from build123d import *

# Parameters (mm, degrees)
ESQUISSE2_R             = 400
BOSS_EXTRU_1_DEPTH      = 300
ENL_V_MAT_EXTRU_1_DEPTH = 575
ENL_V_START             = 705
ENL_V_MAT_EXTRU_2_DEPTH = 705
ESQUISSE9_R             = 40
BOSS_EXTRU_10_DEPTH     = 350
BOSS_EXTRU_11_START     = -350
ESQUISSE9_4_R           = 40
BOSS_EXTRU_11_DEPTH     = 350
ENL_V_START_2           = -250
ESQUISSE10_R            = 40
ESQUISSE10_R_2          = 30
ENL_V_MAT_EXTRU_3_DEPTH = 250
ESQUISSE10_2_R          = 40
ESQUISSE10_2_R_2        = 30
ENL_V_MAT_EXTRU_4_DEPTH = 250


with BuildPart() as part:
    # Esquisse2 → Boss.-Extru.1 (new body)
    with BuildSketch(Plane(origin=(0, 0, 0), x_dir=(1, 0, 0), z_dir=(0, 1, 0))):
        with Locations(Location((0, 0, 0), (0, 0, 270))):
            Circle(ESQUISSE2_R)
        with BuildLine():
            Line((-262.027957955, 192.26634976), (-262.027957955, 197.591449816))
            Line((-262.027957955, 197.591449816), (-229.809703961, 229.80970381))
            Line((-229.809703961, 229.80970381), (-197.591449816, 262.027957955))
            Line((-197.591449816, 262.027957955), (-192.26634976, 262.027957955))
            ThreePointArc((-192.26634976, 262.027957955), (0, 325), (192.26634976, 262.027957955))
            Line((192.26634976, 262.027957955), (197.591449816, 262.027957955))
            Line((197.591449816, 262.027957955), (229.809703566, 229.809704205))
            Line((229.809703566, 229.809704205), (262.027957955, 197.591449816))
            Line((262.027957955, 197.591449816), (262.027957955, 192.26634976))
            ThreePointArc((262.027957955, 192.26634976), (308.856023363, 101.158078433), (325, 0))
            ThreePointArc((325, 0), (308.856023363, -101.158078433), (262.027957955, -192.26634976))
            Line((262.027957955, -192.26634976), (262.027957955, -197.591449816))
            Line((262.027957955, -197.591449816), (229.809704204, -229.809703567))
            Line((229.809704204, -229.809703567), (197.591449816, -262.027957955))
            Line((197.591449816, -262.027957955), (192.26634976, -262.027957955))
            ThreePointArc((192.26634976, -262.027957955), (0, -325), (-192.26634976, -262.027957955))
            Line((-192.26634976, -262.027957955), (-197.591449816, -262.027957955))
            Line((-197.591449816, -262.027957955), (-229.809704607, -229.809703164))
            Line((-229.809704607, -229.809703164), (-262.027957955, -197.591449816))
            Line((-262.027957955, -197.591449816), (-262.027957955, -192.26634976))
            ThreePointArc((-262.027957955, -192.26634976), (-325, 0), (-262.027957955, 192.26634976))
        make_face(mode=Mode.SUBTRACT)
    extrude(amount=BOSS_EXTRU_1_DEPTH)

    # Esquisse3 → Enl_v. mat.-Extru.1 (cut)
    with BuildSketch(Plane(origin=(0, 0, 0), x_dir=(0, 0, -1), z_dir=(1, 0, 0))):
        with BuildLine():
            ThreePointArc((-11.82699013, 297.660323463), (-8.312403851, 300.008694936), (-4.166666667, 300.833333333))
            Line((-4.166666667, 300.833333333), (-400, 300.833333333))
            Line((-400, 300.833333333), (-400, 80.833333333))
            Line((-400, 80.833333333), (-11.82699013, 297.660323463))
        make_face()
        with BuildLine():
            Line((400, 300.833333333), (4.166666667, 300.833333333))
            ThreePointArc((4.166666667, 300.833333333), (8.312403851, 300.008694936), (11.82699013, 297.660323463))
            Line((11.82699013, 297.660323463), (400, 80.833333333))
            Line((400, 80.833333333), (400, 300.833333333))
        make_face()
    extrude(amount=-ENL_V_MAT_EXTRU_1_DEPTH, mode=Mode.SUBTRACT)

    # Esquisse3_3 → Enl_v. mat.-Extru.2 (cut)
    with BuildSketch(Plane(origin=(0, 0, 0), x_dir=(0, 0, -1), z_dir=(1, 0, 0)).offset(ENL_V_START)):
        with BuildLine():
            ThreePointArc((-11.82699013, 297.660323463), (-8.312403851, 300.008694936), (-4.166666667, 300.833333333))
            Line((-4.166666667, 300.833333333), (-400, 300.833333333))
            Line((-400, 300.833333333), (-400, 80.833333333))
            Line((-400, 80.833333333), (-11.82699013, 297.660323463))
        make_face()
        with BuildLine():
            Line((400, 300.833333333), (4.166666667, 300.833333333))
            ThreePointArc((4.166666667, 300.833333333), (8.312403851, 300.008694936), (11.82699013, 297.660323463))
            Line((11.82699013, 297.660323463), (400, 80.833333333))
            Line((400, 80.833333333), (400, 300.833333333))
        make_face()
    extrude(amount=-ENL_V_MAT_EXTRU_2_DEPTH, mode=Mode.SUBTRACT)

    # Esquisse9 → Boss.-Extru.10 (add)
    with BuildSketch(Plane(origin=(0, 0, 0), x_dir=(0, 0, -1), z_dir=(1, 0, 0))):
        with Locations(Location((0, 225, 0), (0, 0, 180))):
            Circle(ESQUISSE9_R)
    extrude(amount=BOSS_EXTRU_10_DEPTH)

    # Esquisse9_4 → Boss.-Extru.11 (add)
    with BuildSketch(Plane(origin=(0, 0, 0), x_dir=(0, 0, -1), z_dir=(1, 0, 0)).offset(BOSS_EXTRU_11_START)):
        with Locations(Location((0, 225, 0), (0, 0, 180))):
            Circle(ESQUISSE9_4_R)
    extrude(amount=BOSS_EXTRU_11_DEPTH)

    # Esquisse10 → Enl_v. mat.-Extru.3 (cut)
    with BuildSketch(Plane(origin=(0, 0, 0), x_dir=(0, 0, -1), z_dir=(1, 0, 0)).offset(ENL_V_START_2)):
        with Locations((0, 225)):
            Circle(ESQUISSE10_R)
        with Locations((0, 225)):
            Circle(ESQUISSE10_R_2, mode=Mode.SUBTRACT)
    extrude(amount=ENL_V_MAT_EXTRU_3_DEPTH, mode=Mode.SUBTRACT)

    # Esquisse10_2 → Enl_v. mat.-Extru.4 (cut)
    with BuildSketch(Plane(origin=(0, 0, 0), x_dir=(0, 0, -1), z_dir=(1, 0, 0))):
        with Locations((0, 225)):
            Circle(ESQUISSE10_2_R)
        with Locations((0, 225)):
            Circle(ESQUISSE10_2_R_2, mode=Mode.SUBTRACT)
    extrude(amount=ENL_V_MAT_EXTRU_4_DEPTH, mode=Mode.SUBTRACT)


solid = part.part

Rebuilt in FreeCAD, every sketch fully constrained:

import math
import FreeCAD as App
import Part
import Sketcher

V = App.Vector
Q = App.Units.Quantity

doc = App.newDocument("Part")
body = doc.addObject("PartDesign::Body", "Body")

# Sketch on XZ plane
sketch1 = body.newObject("Sketcher::SketchObject", "Sketch")
sketch1.AttachmentSupport = (doc.getObject("XZ_Plane"), [""])
sketch1.MapMode = "FlatFace"
sketch1.addGeometry([
    Part.Circle(V(0, 0, 0), V(0, 0, 1), 400),  # 0
    Part.ArcOfCircle(Part.Circle(V(0, 0, 0), V(0, 0, 1), 325), math.radians(144), math.radians(216)),  # 1
    Part.LineSegment(V(-262, -192, 0), V(-262, -198, 0)),  # 2
    Part.LineSegment(V(-262, -198, 0), V(-198, -262, 0)),  # 3
    Part.LineSegment(V(-198, -262, 0), V(-192, -262, 0)),  # 4
    Part.ArcOfCircle(Part.Circle(V(0, 0, 0), V(0, 0, 1), 325), math.radians(-126), math.radians(-54)),  # 5
    Part.LineSegment(V(192, -262, 0), V(198, -262, 0)),  # 6
    Part.LineSegment(V(198, -262, 0), V(262, -198, 0)),  # 7
    Part.LineSegment(V(262, -198, 0), V(262, -192, 0)),  # 8
    Part.ArcOfCircle(Part.Circle(V(0, 0, 0), V(0, 0, 1), 325), math.radians(-36), math.radians(0)),  # 9
    Part.ArcOfCircle(Part.Circle(V(0, 0, 0), V(0, 0, 1), 325), math.radians(0), math.radians(36)),  # 10
    Part.LineSegment(V(262, 192, 0), V(262, 198, 0)),  # 11
    Part.LineSegment(V(262, 198, 0), V(198, 262, 0)),  # 12
    Part.LineSegment(V(198, 262, 0), V(192, 262, 0)),  # 13
    Part.ArcOfCircle(Part.Circle(V(0, 0, 0), V(0, 0, 1), 325), math.radians(54), math.radians(126)),  # 14
    Part.LineSegment(V(-192, 262, 0), V(-198, 262, 0)),  # 15
    Part.LineSegment(V(-198, 262, 0), V(-262, 198, 0)),  # 16
    Part.LineSegment(V(-262, 198, 0), V(-262, 192, 0)),  # 17
], False)
sketch1.addConstraint([
    Sketcher.Constraint("Coincident", 1, 2, 2, 1),
    Sketcher.Constraint("Coincident", 2, 2, 3, 1),
    Sketcher.Constraint("Coincident", 3, 2, 4, 1),
    Sketcher.Constraint("Coincident", 4, 2, 5, 1),
    Sketcher.Constraint("Coincident", 5, 2, 6, 1),
    Sketcher.Constraint("Coincident", 6, 2, 7, 1),
    Sketcher.Constraint("Coincident", 7, 2, 8, 1),
    Sketcher.Constraint("Coincident", 8, 2, 9, 1),
    Sketcher.Constraint("Tangent", 9, 2, 10, 1),
    Sketcher.Constraint("Coincident", 10, 2, 11, 1),
    Sketcher.Constraint("Coincident", 11, 2, 12, 1),
    Sketcher.Constraint("Coincident", 12, 2, 13, 1),
    Sketcher.Constraint("Coincident", 13, 2, 14, 1),
    Sketcher.Constraint("Coincident", 14, 2, 15, 1),
    Sketcher.Constraint("Coincident", 15, 2, 16, 1),
    Sketcher.Constraint("Coincident", 16, 2, 17, 1),
    Sketcher.Constraint("Coincident", 17, 2, 1, 1),
    Sketcher.Constraint("Vertical", 2),
    Sketcher.Constraint("Horizontal", 4),
    Sketcher.Constraint("Horizontal", 6),
    Sketcher.Constraint("Vertical", 8),
    Sketcher.Constraint("Vertical", 11),
    Sketcher.Constraint("Horizontal", 13),
    Sketcher.Constraint("Horizontal", 15),
    Sketcher.Constraint("Vertical", 17),
    Sketcher.Constraint("Coincident", 0, 3, -1, 1),
    Sketcher.Constraint("Coincident", 1, 3, -1, 1),
    Sketcher.Constraint("Coincident", 5, 3, -1, 1),
    Sketcher.Constraint("Coincident", 9, 3, -1, 1),
    Sketcher.Constraint("Coincident", 14, 3, -1, 1),
    Sketcher.Constraint("Equal", 1, 5),
    Sketcher.Constraint("Equal", 5, 9),
    Sketcher.Constraint("Equal", 9, 10),
    Sketcher.Constraint("Equal", 10, 14),
    Sketcher.Constraint("Symmetric", 2, 2, 11, 2, -1, 1),
    Sketcher.Constraint("Symmetric", 3, 2, 12, 2, -1, 1),
    Sketcher.Constraint("Symmetric", 6, 2, 15, 2, -1, 1),
    Sketcher.Constraint("Symmetric", 7, 2, 16, 2, -1, 1),
    Sketcher.Constraint("Symmetric", 3, 2, 6, 2, -2),
    Sketcher.Constraint("Symmetric", 2, 2, 7, 2, -2),
    Sketcher.Constraint("PointOnObject", 9, 2, -1),
    Sketcher.Constraint("Perpendicular", 3, 7),
    Sketcher.Constraint("Equal", 15, 2),
    Sketcher.Constraint("Diameter", 0, Q("800 mm")),
    Sketcher.Constraint("Radius", 1, Q("325 mm")),
    Sketcher.Constraint("DistanceX", 4, 1, 4, 2, Q("5.3251 mm")),
    Sketcher.Constraint("DistanceY", 2, 2, -1, 1, Q("197.59145 mm")),
])
pad1 = body.newObject("PartDesign::Pad", "Pad")
pad1.Profile = sketch1
pad1.Length = 300
pad1.Reversed = True

# Sketch on YZ plane
sketch2 = body.newObject("Sketcher::SketchObject", "Sketch001")
sketch2.AttachmentSupport = (doc.getObject("YZ_Plane"), [""])
sketch2.MapMode = "FlatFace"
sketch2.addGeometry([
    Part.ArcOfCircle(Part.Circle(V(290, 4, 0), V(0, 0, 1), 11), math.radians(0), math.radians(45)),  # 0
    Part.LineSegment(V(301, 4, 0), V(301, 400, 0)),  # 1
    Part.LineSegment(V(301, 400, 0), V(81, 400, 0)),  # 2
    Part.LineSegment(V(81, 400, 0), V(298, 12, 0)),  # 3
    Part.LineSegment(V(301, -400, 0), V(301, -4, 0)),  # 4
    Part.ArcOfCircle(Part.Circle(V(290, -4, 0), V(0, 0, 1), 11), math.radians(-45), math.radians(0)),  # 5
    Part.LineSegment(V(298, -12, 0), V(81, -400, 0)),  # 6
    Part.LineSegment(V(81, -400, 0), V(301, -400, 0)),  # 7
], False)
sketch2.addConstraint([
    Sketcher.Constraint("Tangent", 0, 1, 1, 1),
    Sketcher.Constraint("Coincident", 1, 2, 2, 1),
    Sketcher.Constraint("Coincident", 2, 2, 3, 1),
    Sketcher.Constraint("Coincident", 3, 2, 0, 2),
    Sketcher.Constraint("Tangent", 4, 2, 5, 2),
    Sketcher.Constraint("Coincident", 5, 1, 6, 1),
    Sketcher.Constraint("Coincident", 6, 2, 7, 1),
    Sketcher.Constraint("Coincident", 7, 2, 4, 1),
    Sketcher.Constraint("Vertical", 1),
    Sketcher.Constraint("Horizontal", 2),
    Sketcher.Constraint("Vertical", 4),
    Sketcher.Constraint("Horizontal", 7),
    Sketcher.Constraint("Equal", 0, 5),
    Sketcher.Constraint("Symmetric", 0, 3, 5, 3, -1),
    Sketcher.Constraint("Symmetric", 2, 2, 6, 2, -1),
    Sketcher.Constraint("Vertical", 3, 2, 5, 1),
    Sketcher.Constraint("DistanceX", 2, 2, 2, 1, Q("220 mm")),
    Sketcher.Constraint("DistanceX", -1, 1, 0, 3, Q("290 mm")),
    Sketcher.Constraint("DistanceY", -1, 1, 1, 2, Q("400 mm")),
    Sketcher.Constraint("Radius", 0, Q("10.833333 mm")),
    Sketcher.Constraint("DistanceY", 1, 1, 1, 2, Q("395.833333 mm")),
    Sketcher.Constraint("DistanceY", -1, 1, 3, 2, Q("11.82699 mm")),
])
pocket1 = body.newObject("PartDesign::Pocket", "Pocket")
pocket1.Profile = sketch2
pocket1.Length = 575

# Sketch on YZ plane
sketch3 = body.newObject("Sketcher::SketchObject", "Sketch002")
sketch3.AttachmentSupport = (doc.getObject("YZ_Plane"), [""])
sketch3.MapMode = "FlatFace"
sketch3.AttachmentOffset = App.Placement(V(0, 0, 705), App.Rotation())
sketch3.addGeometry([
    Part.ArcOfCircle(Part.Circle(V(290, 4, 0), V(0, 0, 1), 11), math.radians(0), math.radians(45)),  # 0
    Part.LineSegment(V(301, 4, 0), V(301, 400, 0)),  # 1
    Part.LineSegment(V(301, 400, 0), V(81, 400, 0)),  # 2
    Part.LineSegment(V(81, 400, 0), V(298, 12, 0)),  # 3
    Part.LineSegment(V(301, -400, 0), V(301, -4, 0)),  # 4
    Part.ArcOfCircle(Part.Circle(V(290, -4, 0), V(0, 0, 1), 11), math.radians(-45), math.radians(0)),  # 5
    Part.LineSegment(V(298, -12, 0), V(81, -400, 0)),  # 6
    Part.LineSegment(V(81, -400, 0), V(301, -400, 0)),  # 7
], False)
sketch3.addConstraint([
    Sketcher.Constraint("Tangent", 0, 1, 1, 1),
    Sketcher.Constraint("Coincident", 1, 2, 2, 1),
    Sketcher.Constraint("Coincident", 2, 2, 3, 1),
    Sketcher.Constraint("Coincident", 3, 2, 0, 2),
    Sketcher.Constraint("Tangent", 4, 2, 5, 2),
    Sketcher.Constraint("Coincident", 5, 1, 6, 1),
    Sketcher.Constraint("Coincident", 6, 2, 7, 1),
    Sketcher.Constraint("Coincident", 7, 2, 4, 1),
    Sketcher.Constraint("Vertical", 1),
    Sketcher.Constraint("Horizontal", 2),
    Sketcher.Constraint("Vertical", 4),
    Sketcher.Constraint("Horizontal", 7),
    Sketcher.Constraint("Equal", 0, 5),
    Sketcher.Constraint("Symmetric", 0, 3, 5, 3, -1),
    Sketcher.Constraint("Symmetric", 2, 2, 6, 2, -1),
    Sketcher.Constraint("Vertical", 3, 2, 5, 1),
    Sketcher.Constraint("DistanceX", 2, 2, 2, 1, Q("220 mm")),
    Sketcher.Constraint("DistanceX", -1, 1, 0, 3, Q("290 mm")),
    Sketcher.Constraint("DistanceY", -1, 1, 1, 2, Q("400 mm")),
    Sketcher.Constraint("Radius", 0, Q("10.833333 mm")),
    Sketcher.Constraint("DistanceY", 1, 1, 1, 2, Q("395.833333 mm")),
    Sketcher.Constraint("DistanceY", -1, 1, 3, 2, Q("11.82699 mm")),
])
pocket2 = body.newObject("PartDesign::Pocket", "Pocket001")
pocket2.Profile = sketch3
pocket2.Length = 705

# Sketch on YZ plane
sketch4 = body.newObject("Sketcher::SketchObject", "Sketch003")
sketch4.AttachmentSupport = (doc.getObject("YZ_Plane"), [""])
sketch4.MapMode = "FlatFace"
sketch4.addGeometry(Part.Circle(V(225, 0, 0), V(0, 0, 1), 40), False)
sketch4.addConstraint([
    Sketcher.Constraint("PointOnObject", 0, 3, -1),
    Sketcher.Constraint("Diameter", 0, Q("80 mm")),
    Sketcher.Constraint("DistanceX", -1, 1, 0, 3, Q("225 mm")),
])
pad2 = body.newObject("PartDesign::Pad", "Pad001")
pad2.Profile = sketch4
pad2.Length = 350

# Sketch on YZ plane
sketch5 = body.newObject("Sketcher::SketchObject", "Sketch004")
sketch5.AttachmentSupport = (doc.getObject("YZ_Plane"), [""])
sketch5.MapMode = "FlatFace"
sketch5.AttachmentOffset = App.Placement(V(0, 0, -350), App.Rotation())
sketch5.addGeometry(Part.Circle(V(225, 0, 0), V(0, 0, 1), 40), False)
sketch5.addConstraint([
    Sketcher.Constraint("PointOnObject", 0, 3, -1),
    Sketcher.Constraint("Diameter", 0, Q("80 mm")),
    Sketcher.Constraint("DistanceX", -1, 1, 0, 3, Q("225 mm")),
])
pad3 = body.newObject("PartDesign::Pad", "Pad002")
pad3.Profile = sketch5
pad3.Length = 350

# Sketch on YZ plane
sketch6 = body.newObject("Sketcher::SketchObject", "Sketch005")
sketch6.AttachmentSupport = (doc.getObject("YZ_Plane"), [""])
sketch6.MapMode = "FlatFace"
sketch6.AttachmentOffset = App.Placement(V(0, 0, -250), App.Rotation())
sketch6.addGeometry([
    Part.Circle(V(225, 0, 0), V(0, 0, 1), 40),
    Part.Circle(V(225, 0, 0), V(0, 0, 1), 30),
], False)
sketch6.addConstraint([
    Sketcher.Constraint("Coincident", 1, 3, 0, 3),
    Sketcher.Constraint("PointOnObject", 0, 3, -1),
    Sketcher.Constraint("Diameter", 0, Q("80 mm")),
    Sketcher.Constraint("Diameter", 1, Q("60 mm")),
    Sketcher.Constraint("DistanceX", -1, 1, 0, 3, Q("225 mm")),
])
pocket3 = body.newObject("PartDesign::Pocket", "Pocket002")
pocket3.Profile = sketch6
pocket3.Length = 250
pocket3.Reversed = True

# Sketch on YZ plane
sketch7 = body.newObject("Sketcher::SketchObject", "Sketch006")
sketch7.AttachmentSupport = (doc.getObject("YZ_Plane"), [""])
sketch7.MapMode = "FlatFace"
sketch7.addGeometry([
    Part.Circle(V(225, 0, 0), V(0, 0, 1), 40),
    Part.Circle(V(225, 0, 0), V(0, 0, 1), 30),
], False)
sketch7.addConstraint([
    Sketcher.Constraint("Coincident", 1, 3, 0, 3),
    Sketcher.Constraint("PointOnObject", 0, 3, -1),
    Sketcher.Constraint("Diameter", 0, Q("80 mm")),
    Sketcher.Constraint("Diameter", 1, Q("60 mm")),
    Sketcher.Constraint("DistanceX", -1, 1, 0, 3, Q("225 mm")),
])
pocket4 = body.newObject("PartDesign::Pocket", "Pocket003")
pocket4.Profile = sketch7
pocket4.Length = 250
pocket4.Reversed = True

doc.recompute()
